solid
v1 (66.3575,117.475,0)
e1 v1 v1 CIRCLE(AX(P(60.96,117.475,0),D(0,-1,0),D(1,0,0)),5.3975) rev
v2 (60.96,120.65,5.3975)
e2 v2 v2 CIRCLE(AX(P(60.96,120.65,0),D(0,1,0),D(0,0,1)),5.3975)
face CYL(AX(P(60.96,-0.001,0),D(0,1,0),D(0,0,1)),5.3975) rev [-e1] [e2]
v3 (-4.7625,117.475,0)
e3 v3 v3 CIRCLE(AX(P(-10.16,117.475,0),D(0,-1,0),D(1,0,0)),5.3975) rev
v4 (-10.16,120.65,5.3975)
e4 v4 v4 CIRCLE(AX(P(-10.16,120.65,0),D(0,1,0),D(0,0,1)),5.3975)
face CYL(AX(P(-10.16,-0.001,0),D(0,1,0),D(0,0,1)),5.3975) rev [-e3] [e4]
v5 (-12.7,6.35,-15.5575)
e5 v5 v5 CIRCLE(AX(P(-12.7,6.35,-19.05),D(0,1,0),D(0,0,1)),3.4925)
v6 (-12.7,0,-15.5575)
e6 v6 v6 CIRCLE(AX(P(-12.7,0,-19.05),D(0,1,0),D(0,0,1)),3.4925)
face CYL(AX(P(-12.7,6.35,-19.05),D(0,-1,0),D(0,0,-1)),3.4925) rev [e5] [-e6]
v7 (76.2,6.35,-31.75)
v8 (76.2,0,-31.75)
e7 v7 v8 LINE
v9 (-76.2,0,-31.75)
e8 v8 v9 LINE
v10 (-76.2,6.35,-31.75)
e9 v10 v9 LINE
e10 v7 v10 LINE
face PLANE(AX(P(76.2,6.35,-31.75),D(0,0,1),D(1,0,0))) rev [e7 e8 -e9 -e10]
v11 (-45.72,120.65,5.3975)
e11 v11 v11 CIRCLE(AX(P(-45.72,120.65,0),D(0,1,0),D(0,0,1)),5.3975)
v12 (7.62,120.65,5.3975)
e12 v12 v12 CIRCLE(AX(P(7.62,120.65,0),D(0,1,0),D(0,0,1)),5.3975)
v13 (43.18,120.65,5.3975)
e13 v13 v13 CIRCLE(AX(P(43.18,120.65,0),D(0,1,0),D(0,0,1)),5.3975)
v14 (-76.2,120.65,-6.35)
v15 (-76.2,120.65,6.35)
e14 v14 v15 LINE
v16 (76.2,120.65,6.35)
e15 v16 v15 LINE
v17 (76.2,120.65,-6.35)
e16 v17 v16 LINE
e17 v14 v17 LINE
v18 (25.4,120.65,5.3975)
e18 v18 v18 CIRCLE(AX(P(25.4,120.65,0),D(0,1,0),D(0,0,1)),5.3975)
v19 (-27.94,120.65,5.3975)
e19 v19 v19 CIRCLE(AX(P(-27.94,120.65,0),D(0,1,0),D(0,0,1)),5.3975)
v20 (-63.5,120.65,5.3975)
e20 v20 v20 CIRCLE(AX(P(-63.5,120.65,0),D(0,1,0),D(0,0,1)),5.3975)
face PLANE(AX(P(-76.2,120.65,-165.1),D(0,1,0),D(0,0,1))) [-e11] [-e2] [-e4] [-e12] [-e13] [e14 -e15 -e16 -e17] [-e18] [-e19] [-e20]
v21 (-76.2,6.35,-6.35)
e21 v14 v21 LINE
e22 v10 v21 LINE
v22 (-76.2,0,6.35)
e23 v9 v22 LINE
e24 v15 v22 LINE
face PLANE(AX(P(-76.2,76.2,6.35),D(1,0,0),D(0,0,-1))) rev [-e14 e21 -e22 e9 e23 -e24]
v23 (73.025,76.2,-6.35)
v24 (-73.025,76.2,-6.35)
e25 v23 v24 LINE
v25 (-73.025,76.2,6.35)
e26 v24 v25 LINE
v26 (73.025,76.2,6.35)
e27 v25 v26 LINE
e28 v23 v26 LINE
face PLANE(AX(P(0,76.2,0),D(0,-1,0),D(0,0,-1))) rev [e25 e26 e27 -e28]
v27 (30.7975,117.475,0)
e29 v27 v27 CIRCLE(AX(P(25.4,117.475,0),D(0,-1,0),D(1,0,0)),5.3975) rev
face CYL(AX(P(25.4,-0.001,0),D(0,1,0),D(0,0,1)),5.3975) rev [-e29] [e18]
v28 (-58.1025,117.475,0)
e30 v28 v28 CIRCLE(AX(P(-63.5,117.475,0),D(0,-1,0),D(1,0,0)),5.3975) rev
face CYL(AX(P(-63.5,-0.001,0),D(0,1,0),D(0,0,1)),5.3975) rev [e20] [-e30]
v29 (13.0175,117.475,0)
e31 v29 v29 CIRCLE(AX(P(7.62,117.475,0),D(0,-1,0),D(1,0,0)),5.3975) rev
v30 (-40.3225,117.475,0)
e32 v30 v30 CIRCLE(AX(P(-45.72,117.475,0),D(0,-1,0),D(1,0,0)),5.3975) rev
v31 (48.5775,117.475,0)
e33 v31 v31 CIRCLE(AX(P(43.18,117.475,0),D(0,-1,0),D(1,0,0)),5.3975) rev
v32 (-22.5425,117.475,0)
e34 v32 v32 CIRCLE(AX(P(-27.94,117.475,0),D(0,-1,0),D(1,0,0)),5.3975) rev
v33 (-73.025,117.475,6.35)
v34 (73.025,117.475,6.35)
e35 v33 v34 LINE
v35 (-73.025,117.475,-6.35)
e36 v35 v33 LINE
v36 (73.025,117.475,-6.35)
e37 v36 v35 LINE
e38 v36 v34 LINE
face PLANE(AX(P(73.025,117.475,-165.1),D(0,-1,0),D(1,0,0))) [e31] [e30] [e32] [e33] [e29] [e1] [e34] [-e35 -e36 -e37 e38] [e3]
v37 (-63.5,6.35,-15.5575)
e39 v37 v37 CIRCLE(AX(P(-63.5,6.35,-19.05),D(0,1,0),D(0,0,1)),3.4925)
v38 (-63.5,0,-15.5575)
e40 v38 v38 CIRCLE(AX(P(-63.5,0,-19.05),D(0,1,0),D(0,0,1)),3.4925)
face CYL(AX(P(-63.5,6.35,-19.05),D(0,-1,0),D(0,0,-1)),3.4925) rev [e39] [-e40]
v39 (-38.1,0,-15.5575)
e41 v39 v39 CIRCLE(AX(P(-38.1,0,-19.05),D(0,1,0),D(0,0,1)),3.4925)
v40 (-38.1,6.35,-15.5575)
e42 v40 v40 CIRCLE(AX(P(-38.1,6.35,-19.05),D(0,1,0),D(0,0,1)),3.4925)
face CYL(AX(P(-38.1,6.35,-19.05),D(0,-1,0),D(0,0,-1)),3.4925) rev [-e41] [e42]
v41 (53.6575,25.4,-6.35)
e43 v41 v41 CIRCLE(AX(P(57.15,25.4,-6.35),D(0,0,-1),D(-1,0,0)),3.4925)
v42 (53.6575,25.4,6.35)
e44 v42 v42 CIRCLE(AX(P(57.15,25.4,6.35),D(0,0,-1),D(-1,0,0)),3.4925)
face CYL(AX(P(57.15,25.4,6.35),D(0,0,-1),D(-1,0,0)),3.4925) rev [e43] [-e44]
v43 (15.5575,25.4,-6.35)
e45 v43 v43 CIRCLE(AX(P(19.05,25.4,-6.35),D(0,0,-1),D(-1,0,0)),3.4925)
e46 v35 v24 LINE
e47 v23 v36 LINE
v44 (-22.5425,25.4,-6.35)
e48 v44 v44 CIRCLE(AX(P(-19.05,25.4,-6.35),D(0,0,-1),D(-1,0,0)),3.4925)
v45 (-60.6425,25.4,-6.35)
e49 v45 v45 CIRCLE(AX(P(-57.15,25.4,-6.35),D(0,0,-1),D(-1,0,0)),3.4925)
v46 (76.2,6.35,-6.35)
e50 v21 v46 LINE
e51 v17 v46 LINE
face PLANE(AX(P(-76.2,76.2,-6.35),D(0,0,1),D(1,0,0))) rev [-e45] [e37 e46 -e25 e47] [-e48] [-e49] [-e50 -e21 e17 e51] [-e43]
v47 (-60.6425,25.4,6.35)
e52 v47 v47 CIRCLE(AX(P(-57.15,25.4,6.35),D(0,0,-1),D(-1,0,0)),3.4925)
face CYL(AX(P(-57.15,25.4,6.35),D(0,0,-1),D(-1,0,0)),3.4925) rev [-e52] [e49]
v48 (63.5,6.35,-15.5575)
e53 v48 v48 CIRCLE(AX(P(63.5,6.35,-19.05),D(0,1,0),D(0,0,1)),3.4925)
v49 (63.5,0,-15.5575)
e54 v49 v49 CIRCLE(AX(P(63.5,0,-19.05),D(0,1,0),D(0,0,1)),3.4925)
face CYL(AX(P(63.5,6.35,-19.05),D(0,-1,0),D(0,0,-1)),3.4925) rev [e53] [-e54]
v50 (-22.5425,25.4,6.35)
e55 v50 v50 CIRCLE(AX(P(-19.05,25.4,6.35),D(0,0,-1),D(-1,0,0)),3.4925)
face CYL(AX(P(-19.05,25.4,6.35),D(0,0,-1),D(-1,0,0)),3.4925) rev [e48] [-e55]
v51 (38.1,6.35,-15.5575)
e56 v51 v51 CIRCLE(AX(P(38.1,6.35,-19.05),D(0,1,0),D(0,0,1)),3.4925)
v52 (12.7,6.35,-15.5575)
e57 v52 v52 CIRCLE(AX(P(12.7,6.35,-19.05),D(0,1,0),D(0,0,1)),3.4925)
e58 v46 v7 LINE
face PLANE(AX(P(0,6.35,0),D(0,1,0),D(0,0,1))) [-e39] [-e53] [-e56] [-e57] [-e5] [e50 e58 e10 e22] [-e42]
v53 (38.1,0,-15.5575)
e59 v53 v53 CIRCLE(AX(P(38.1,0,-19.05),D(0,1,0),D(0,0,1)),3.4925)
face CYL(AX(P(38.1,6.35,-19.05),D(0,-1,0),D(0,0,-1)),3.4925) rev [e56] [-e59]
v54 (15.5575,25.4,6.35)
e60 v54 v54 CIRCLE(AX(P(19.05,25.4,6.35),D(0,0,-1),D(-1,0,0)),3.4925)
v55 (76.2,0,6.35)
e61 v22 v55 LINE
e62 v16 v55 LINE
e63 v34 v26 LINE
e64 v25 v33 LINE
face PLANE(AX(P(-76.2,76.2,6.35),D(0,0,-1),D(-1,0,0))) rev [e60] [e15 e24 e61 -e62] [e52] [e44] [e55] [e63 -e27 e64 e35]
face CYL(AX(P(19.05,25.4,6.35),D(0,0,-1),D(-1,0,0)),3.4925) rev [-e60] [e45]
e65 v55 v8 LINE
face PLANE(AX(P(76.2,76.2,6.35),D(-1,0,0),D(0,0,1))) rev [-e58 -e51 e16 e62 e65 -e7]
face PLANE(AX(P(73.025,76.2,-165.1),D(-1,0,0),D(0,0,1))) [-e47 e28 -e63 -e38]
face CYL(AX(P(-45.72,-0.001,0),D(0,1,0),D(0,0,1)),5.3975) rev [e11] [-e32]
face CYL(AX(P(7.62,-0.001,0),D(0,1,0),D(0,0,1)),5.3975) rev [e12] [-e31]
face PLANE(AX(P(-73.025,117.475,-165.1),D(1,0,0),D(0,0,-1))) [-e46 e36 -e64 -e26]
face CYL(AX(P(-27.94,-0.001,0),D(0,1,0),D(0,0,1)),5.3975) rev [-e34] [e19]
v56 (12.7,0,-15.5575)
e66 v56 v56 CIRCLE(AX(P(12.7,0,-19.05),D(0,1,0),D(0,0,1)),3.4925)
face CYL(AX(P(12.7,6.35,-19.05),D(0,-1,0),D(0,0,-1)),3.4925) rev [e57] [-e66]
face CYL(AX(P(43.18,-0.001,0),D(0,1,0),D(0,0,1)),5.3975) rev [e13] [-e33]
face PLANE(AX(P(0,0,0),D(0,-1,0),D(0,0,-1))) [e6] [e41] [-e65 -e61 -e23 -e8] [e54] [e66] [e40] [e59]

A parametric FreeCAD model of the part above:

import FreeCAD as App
import Part
import Sketcher

V = App.Vector
Q = App.Units.Quantity

doc = App.newDocument("Part")
body = doc.addObject("PartDesign::Body", "Body")

# Sketch on XZ plane
sketch1 = doc.addObject("Sketcher::SketchObject", "Sketch")
body.addObject(sketch1)
sketch1.AttachmentSupport = (doc.XZ_Plane, [""])
sketch1.MapMode = "FlatFace"
sketch1.addGeometry([
    Part.LineSegment(V(-76, -6, 0), V(-76, 6, 0)),
    Part.LineSegment(V(-76, 6, 0), V(76, 6, 0)),
    Part.LineSegment(V(76, 6, 0), V(76, -6, 0)),
    Part.LineSegment(V(76, -6, 0), V(-76, -6, 0)),
], False)
sketch1.addConstraint([
    Sketcher.Constraint("Coincident", 0, 2, 1, 1),
    Sketcher.Constraint("Coincident", 1, 2, 2, 1),
    Sketcher.Constraint("Coincident", 2, 2, 3, 1),
    Sketcher.Constraint("Coincident", 3, 2, 0, 1),
    Sketcher.Constraint("Vertical", 0),
    Sketcher.Constraint("Horizontal", 1),
    Sketcher.Constraint("Vertical", 2),
    Sketcher.Constraint("Horizontal", 3),
    Sketcher.Constraint("Symmetric", 0, 2, 2, 2, -1, 1),
    Sketcher.Constraint("DistanceX", 1, 1, 1, 2, Q("6 in")),
    Sketcher.Constraint("DistanceY", 0, 1, 0, 2, Q("0.5 in")),
])
pad1 = doc.addObject("PartDesign::Pad", "Pad")
body.addObject(pad1)
pad1.Profile = sketch1
pad1.Length = Q("3 in")
pad1.Reversed = True

# Sketch on XZ plane
sketch2 = doc.addObject("Sketcher::SketchObject", "Sketch001")
body.addObject(sketch2)
sketch2.AttachmentSupport = (doc.XZ_Plane, [""])
sketch2.MapMode = "FlatFace"
sketch2.addGeometry([
    Part.LineSegment(V(-76.2, -6.3, 0), V(76.2, -6.3, 0)),  # 0
    Part.LineSegment(V(76.2, -6.3, 0), V(76.2, -31.8, 0)),  # 1
    Part.LineSegment(V(76.2, -31.8, 0), V(-76.2, -31.8, 0)),  # 2
    Part.LineSegment(V(-76.2, -31.8, 0), V(-76.2, -6.3, 0)),  # 3
    Part.Circle(V(-63.5, -19.1, 0), V(0, 0, 1), 3.5),  # 4
    Part.Circle(V(-38.1, -19.1, 0), V(0, 0, 1), 3.5),  # 5
    Part.Circle(V(-12.7, -19.1, 0), V(0, 0, 1), 3.5),  # 6
    Part.Circle(V(12.7, -19.1, 0), V(0, 0, 1), 3.5),  # 7
    Part.Circle(V(38.1, -19.1, 0), V(0, 0, 1), 3.5),  # 8
    Part.Circle(V(63.5, -19.1, 0), V(0, 0, 1), 3.5),  # 9
], False)
sketch2.addConstraint([
    Sketcher.Constraint("Coincident", 0, 2, 1, 1),
    Sketcher.Constraint("Coincident", 1, 2, 2, 1),
    Sketcher.Constraint("Coincident", 2, 2, 3, 1),
    Sketcher.Constraint("Coincident", 3, 2, 0, 1),
    Sketcher.Constraint("Horizontal", 0),
    Sketcher.Constraint("Vertical", 1),
    Sketcher.Constraint("Horizontal", 2),
    Sketcher.Constraint("Vertical", 3),
    Sketcher.Constraint("Equal", 4, 5),
    Sketcher.Constraint("Equal", 5, 6),
    Sketcher.Constraint("Equal", 6, 7),
    Sketcher.Constraint("Equal", 7, 8),
    Sketcher.Constraint("Equal", 8, 9),
    Sketcher.Constraint("Symmetric", 6, 3, 7, 3, -2),
    Sketcher.Constraint("Symmetric", 5, 3, 8, 3, -2),
    Sketcher.Constraint("Symmetric", 4, 3, 9, 3, -2),
    Sketcher.Constraint("Horizontal", 4, 3, 5, 3),
    Sketcher.Constraint("Horizontal", 5, 3, 6, 3),
    Sketcher.Constraint("DistanceX", 0, 1, 0, 2, Q("6 in")),
    Sketcher.Constraint("DistanceY", 1, 2, 1, 1, Q("1 in")),
    Sketcher.Constraint("Diameter", 4, Q("0.275 in")),
    Sketcher.Constraint("DistanceX", -1, 1, 0, 2, Q("3 in")),
    Sketcher.Constraint("DistanceX", 4, 3, 5, 3, Q("1 in")),
    Sketcher.Constraint("DistanceX", 5, 3, 6, 3, Q("1 in")),
    Sketcher.Constraint("DistanceX", 6, 3, 7, 3, Q("1 in")),
    Sketcher.Constraint("DistanceY", 9, 3, 0, 2, Q("0.5 in")),
    Sketcher.Constraint("DistanceY", 4, 3, -1, 1, Q("0.75 in")),
])
pad2 = doc.addObject("PartDesign::Pad", "Pad001")
body.addObject(pad2)
pad2.Profile = sketch2
pad2.Length = Q("0.25 in")
pad2.Reversed = True

# Sketch on XY plane
sketch3 = doc.addObject("Sketcher::SketchObject", "Sketch002")
body.addObject(sketch3)
sketch3.AttachmentSupport = (doc.XY_Plane, [""])
sketch3.MapMode = "FlatFace"
sketch3.AttachmentOffset = App.Placement(V(0, 0, 0.25 * 25.4), App.Rotation())
sketch3.addGeometry([
    Part.LineSegment(V(-76.2, 120.7, 0), V(-76.2, 76.2, 0)),  # 0
    Part.LineSegment(V(-76.2, 76.2, 0), V(-73, 76.2, 0)),  # 1
    Part.LineSegment(V(-73, 76.2, 0), V(-73, 117.5, 0)),  # 2
    Part.LineSegment(V(-73, 117.5, 0), V(73, 117.5, 0)),  # 3
    Part.LineSegment(V(73, 117.5, 0), V(73, 76.2, 0)),  # 4
    Part.LineSegment(V(73, 76.2, 0), V(76.2, 76.2, 0)),  # 5
    Part.LineSegment(V(76.2, 76.2, 0), V(76.2, 120.7, 0)),  # 6
    Part.LineSegment(V(76.2, 120.7, 0), V(-76.2, 120.7, 0)),  # 7
], False)
sketch3.addConstraint([
    Sketcher.Constraint("Coincident", 0, 2, 1, 1),
    Sketcher.Constraint("Coincident", 1, 2, 2, 1),
    Sketcher.Constraint("Coincident", 2, 2, 3, 1),
    Sketcher.Constraint("Coincident", 3, 2, 4, 1),
    Sketcher.Constraint("Coincident", 4, 2, 5, 1),
    Sketcher.Constraint("Coincident", 5, 2, 6, 1),
    Sketcher.Constraint("Coincident", 6, 2, 7, 1),
    Sketcher.Constraint("Coincident", 7, 2, 0, 1),
    Sketcher.Constraint("Vertical", 0),
    Sketcher.Constraint("Horizontal", 1),
    Sketcher.Constraint("Vertical", 2),
    Sketcher.Constraint("Horizontal", 3),
    Sketcher.Constraint("Vertical", 4),
    Sketcher.Constraint("Horizontal", 5),
    Sketcher.Constraint("Vertical", 6),
    Sketcher.Constraint("Horizontal", 7),
    Sketcher.Constraint("Symmetric", 1, 2, 4, 2, -2),
    Sketcher.Constraint("Equal", 1, 5),
    Sketcher.Constraint("DistanceX", 7, 2, 7, 1, Q("6 in")),
    Sketcher.Constraint("DistanceY", -1, 1, 0, 2, Q("3 in")),
    Sketcher.Constraint("DistanceX", 3, 1, 3, 2, Q("5.75 in")),
    Sketcher.Constraint("DistanceY", 0, 2, 0, 1, Q("1.75 in")),
    Sketcher.Constraint("DistanceY", 2, 1, 2, 2, Q("1.625 in")),
])
pad3 = doc.addObject("PartDesign::Pad", "Pad002")
body.addObject(pad3)
pad3.Profile = sketch3
pad3.Length = Q("0.5 in")
pad3.Reversed = True

# Sketch on XZ plane
sketch4 = doc.addObject("Sketcher::SketchObject", "Sketch003")
body.addObject(sketch4)
sketch4.AttachmentSupport = (doc.XZ_Plane, [""])
sketch4.MapMode = "FlatFace"
sketch4.AttachmentOffset = App.Placement(V(0, 0, -4.75 * 25.4), App.Rotation())
sketch4.addGeometry(Part.Circle(V(-64, 0, 0), V(0, 0, 1), 5), False)
sketch4.addConstraint([
    Sketcher.Constraint("PointOnObject", 0, 3, -1),
    Sketcher.Constraint("Diameter", 0, Q("0.425 in")),
    Sketcher.Constraint("DistanceX", 0, 3, -1, 1, Q("2.5 in")),
])
pocket1 = doc.addObject("PartDesign::Pocket", "Pocket")
body.addObject(pocket1)
pocket1.Profile = sketch4
pocket1.Type = "UpToFirst"
pocket1.Reversed = True

# Sketch on XZ plane
sketch5 = doc.addObject("Sketcher::SketchObject", "Sketch004")
body.addObject(sketch5)
sketch5.AttachmentSupport = (doc.XZ_Plane, [""])
sketch5.MapMode = "FlatFace"
sketch5.AttachmentOffset = App.Placement(V(0, 0, -4.75 * 25.4), App.Rotation())
sketch5.addGeometry(Part.Circle(V(-46, 0, 0), V(0, 0, 1), 5), False)
sketch5.addConstraint([
    Sketcher.Constraint("PointOnObject", 0, 3, -1),
    Sketcher.Constraint("Diameter", 0, Q("0.425 in")),
    Sketcher.Constraint("DistanceX", 0, 3, -1, 1, Q("1.8 in")),
])
pocket2 = doc.addObject("PartDesign::Pocket", "Pocket001")
body.addObject(pocket2)
pocket2.Profile = sketch5
pocket2.Type = "UpToFirst"
pocket2.Reversed = True

# Sketch on XZ plane
sketch6 = doc.addObject("Sketcher::SketchObject", "Sketch005")
body.addObject(sketch6)
sketch6.AttachmentSupport = (doc.XZ_Plane, [""])
sketch6.MapMode = "FlatFace"
sketch6.AttachmentOffset = App.Placement(V(0, 0, -4.75 * 25.4), App.Rotation())
sketch6.addGeometry(Part.Circle(V(-28, 0, 0), V(0, 0, 1), 5), False)
sketch6.addConstraint([
    Sketcher.Constraint("PointOnObject", 0, 3, -1),
    Sketcher.Constraint("Diameter", 0, Q("0.425 in")),
    Sketcher.Constraint("DistanceX", 0, 3, -1, 1, Q("1.1 in")),
])
pocket3 = doc.addObject("PartDesign::Pocket", "Pocket002")
body.addObject(pocket3)
pocket3.Profile = sketch6
pocket3.Type = "UpToFirst"
pocket3.Reversed = True

# Sketch on XZ plane
sketch7 = doc.addObject("Sketcher::SketchObject", "Sketch006")
body.addObject(sketch7)
sketch7.AttachmentSupport = (doc.XZ_Plane, [""])
sketch7.MapMode = "FlatFace"
sketch7.AttachmentOffset = App.Placement(V(0, 0, -4.75 * 25.4), App.Rotation())
sketch7.addGeometry(Part.Circle(V(-10, 0, 0), V(0, 0, 1), 5), False)
sketch7.addConstraint([
    Sketcher.Constraint("PointOnObject", 0, 3, -1),
    Sketcher.Constraint("Diameter", 0, Q("0.425 in")),
    Sketcher.Constraint("DistanceX", 0, 3, -1, 1, Q("0.4 in")),
])
pocket4 = doc.addObject("PartDesign::Pocket", "Pocket003")
body.addObject(pocket4)
pocket4.Profile = sketch7
pocket4.Type = "UpToFirst"
pocket4.Reversed = True

# Sketch on XZ plane
sketch8 = doc.addObject("Sketcher::SketchObject", "Sketch007")
body.addObject(sketch8)
sketch8.AttachmentSupport = (doc.XZ_Plane, [""])
sketch8.MapMode = "FlatFace"
sketch8.AttachmentOffset = App.Placement(V(0, 0, -4.75 * 25.4), App.Rotation())
sketch8.addGeometry(Part.Circle(V(8, 0, 0), V(0, 0, 1), 5), False)
sketch8.addConstraint([
    Sketcher.Constraint("PointOnObject", 0, 3, -1),
    Sketcher.Constraint("Diameter", 0, Q("0.425 in")),
    Sketcher.Constraint("DistanceX", -1, 1, 0, 3, Q("0.3 in")),
])
pocket5 = doc.addObject("PartDesign::Pocket", "Pocket004")
body.addObject(pocket5)
pocket5.Profile = sketch8
pocket5.Type = "UpToFirst"
pocket5.Reversed = True

# Sketch on XZ plane
sketch9 = doc.addObject("Sketcher::SketchObject", "Sketch008")
body.addObject(sketch9)
sketch9.AttachmentSupport = (doc.XZ_Plane, [""])
sketch9.MapMode = "FlatFace"
sketch9.AttachmentOffset = App.Placement(V(0, 0, -4.75 * 25.4), App.Rotation())
sketch9.addGeometry(Part.Circle(V(25, 0, 0), V(0, 0, 1), 5), False)
sketch9.addConstraint([
    Sketcher.Constraint("PointOnObject", 0, 3, -1),
    Sketcher.Constraint("Diameter", 0, Q("0.425 in")),
    Sketcher.Constraint("DistanceX", -1, 1, 0, 3, Q("1 in")),
])
pocket6 = doc.addObject("PartDesign::Pocket", "Pocket005")
body.addObject(pocket6)
pocket6.Profile = sketch9
pocket6.Type = "UpToFirst"
pocket6.Reversed = True

# Sketch on XZ plane
sketch10 = doc.addObject("Sketcher::SketchObject", "Sketch009")
body.addObject(sketch10)
sketch10.AttachmentSupport = (doc.XZ_Plane, [""])
sketch10.MapMode = "FlatFace"
sketch10.AttachmentOffset = App.Placement(V(0, 0, -4.75 * 25.4), App.Rotation())
sketch10.addGeometry(Part.Circle(V(43, 0, 0), V(0, 0, 1), 5), False)
sketch10.addConstraint([
    Sketcher.Constraint("PointOnObject", 0, 3, -1),
    Sketcher.Constraint("Diameter", 0, Q("0.425 in")),
    Sketcher.Constraint("DistanceX", -1, 1, 0, 3, Q("1.7 in")),
])
pocket7 = doc.addObject("PartDesign::Pocket", "Pocket006")
body.addObject(pocket7)
pocket7.Profile = sketch10
pocket7.Type = "UpToFirst"
pocket7.Reversed = True

# Sketch on XZ plane
sketch11 = doc.addObject("Sketcher::SketchObject", "Sketch010")
body.addObject(sketch11)
sketch11.AttachmentSupport = (doc.XZ_Plane, [""])
sketch11.MapMode = "FlatFace"
sketch11.AttachmentOffset = App.Placement(V(0, 0, -4.75 * 25.4), App.Rotation())
sketch11.addGeometry(Part.Circle(V(61, 0, 0), V(0, 0, 1), 5), False)
sketch11.addConstraint([
    Sketcher.Constraint("PointOnObject", 0, 3, -1),
    Sketcher.Constraint("Diameter", 0, Q("0.425 in")),
    Sketcher.Constraint("DistanceX", -1, 1, 0, 3, Q("2.4 in")),
])
pocket8 = doc.addObject("PartDesign::Pocket", "Pocket007")
body.addObject(pocket8)
pocket8.Profile = sketch11
pocket8.Type = "UpToFirst"
pocket8.Reversed = True

# Sketch on XY plane
sketch12 = doc.addObject("Sketcher::SketchObject", "Sketch011")
body.addObject(sketch12)
sketch12.AttachmentSupport = (doc.XY_Plane, [""])
sketch12.MapMode = "FlatFace"
sketch12.AttachmentOffset = App.Placement(V(0, 0, -0.25 * 25.4), App.Rotation())
sketch12.addGeometry([
    Part.Circle(V(57.1, 25.4, 0), V(0, 0, 1), 3.5),
    Part.Circle(V(19.1, 25.4, 0), V(0, 0, 1), 3.5),
    Part.Circle(V(-19.1, 25.4, 0), V(0, 0, 1), 3.5),
    Part.Circle(V(-57.1, 25.4, 0), V(0, 0, 1), 3.5),
], False)
sketch12.addConstraint([
    Sketcher.Constraint("Equal", 0, 1),
    Sketcher.Constraint("Equal", 1, 2),
    Sketcher.Constraint("Equal", 2, 3),
    Sketcher.Constraint("Symmetric", 1, 3, 2, 3, -2),
    Sketcher.Constraint("Symmetric", 0, 3, 3, 3, -2),
    Sketcher.Constraint("Horizontal", 0, 3, 1, 3),
    Sketcher.Constraint("Diameter", 0, Q("0.275 in")),
    Sketcher.Constraint("DistanceY", -1, 1, 0, 3, Q("1 in")),
    Sketcher.Constraint("DistanceX", 2, 3, 0, 3, Q("3 in")),
    Sketcher.Constraint("DistanceX", 1, 3, 0, 3, Q("1.5 in")),
])
pocket9 = doc.addObject("PartDesign::Pocket", "Pocket008")
body.addObject(pocket9)
pocket9.Profile = sketch12
pocket9.Type = "ThroughAll"
pocket9.Reversed = True

doc.recompute()
